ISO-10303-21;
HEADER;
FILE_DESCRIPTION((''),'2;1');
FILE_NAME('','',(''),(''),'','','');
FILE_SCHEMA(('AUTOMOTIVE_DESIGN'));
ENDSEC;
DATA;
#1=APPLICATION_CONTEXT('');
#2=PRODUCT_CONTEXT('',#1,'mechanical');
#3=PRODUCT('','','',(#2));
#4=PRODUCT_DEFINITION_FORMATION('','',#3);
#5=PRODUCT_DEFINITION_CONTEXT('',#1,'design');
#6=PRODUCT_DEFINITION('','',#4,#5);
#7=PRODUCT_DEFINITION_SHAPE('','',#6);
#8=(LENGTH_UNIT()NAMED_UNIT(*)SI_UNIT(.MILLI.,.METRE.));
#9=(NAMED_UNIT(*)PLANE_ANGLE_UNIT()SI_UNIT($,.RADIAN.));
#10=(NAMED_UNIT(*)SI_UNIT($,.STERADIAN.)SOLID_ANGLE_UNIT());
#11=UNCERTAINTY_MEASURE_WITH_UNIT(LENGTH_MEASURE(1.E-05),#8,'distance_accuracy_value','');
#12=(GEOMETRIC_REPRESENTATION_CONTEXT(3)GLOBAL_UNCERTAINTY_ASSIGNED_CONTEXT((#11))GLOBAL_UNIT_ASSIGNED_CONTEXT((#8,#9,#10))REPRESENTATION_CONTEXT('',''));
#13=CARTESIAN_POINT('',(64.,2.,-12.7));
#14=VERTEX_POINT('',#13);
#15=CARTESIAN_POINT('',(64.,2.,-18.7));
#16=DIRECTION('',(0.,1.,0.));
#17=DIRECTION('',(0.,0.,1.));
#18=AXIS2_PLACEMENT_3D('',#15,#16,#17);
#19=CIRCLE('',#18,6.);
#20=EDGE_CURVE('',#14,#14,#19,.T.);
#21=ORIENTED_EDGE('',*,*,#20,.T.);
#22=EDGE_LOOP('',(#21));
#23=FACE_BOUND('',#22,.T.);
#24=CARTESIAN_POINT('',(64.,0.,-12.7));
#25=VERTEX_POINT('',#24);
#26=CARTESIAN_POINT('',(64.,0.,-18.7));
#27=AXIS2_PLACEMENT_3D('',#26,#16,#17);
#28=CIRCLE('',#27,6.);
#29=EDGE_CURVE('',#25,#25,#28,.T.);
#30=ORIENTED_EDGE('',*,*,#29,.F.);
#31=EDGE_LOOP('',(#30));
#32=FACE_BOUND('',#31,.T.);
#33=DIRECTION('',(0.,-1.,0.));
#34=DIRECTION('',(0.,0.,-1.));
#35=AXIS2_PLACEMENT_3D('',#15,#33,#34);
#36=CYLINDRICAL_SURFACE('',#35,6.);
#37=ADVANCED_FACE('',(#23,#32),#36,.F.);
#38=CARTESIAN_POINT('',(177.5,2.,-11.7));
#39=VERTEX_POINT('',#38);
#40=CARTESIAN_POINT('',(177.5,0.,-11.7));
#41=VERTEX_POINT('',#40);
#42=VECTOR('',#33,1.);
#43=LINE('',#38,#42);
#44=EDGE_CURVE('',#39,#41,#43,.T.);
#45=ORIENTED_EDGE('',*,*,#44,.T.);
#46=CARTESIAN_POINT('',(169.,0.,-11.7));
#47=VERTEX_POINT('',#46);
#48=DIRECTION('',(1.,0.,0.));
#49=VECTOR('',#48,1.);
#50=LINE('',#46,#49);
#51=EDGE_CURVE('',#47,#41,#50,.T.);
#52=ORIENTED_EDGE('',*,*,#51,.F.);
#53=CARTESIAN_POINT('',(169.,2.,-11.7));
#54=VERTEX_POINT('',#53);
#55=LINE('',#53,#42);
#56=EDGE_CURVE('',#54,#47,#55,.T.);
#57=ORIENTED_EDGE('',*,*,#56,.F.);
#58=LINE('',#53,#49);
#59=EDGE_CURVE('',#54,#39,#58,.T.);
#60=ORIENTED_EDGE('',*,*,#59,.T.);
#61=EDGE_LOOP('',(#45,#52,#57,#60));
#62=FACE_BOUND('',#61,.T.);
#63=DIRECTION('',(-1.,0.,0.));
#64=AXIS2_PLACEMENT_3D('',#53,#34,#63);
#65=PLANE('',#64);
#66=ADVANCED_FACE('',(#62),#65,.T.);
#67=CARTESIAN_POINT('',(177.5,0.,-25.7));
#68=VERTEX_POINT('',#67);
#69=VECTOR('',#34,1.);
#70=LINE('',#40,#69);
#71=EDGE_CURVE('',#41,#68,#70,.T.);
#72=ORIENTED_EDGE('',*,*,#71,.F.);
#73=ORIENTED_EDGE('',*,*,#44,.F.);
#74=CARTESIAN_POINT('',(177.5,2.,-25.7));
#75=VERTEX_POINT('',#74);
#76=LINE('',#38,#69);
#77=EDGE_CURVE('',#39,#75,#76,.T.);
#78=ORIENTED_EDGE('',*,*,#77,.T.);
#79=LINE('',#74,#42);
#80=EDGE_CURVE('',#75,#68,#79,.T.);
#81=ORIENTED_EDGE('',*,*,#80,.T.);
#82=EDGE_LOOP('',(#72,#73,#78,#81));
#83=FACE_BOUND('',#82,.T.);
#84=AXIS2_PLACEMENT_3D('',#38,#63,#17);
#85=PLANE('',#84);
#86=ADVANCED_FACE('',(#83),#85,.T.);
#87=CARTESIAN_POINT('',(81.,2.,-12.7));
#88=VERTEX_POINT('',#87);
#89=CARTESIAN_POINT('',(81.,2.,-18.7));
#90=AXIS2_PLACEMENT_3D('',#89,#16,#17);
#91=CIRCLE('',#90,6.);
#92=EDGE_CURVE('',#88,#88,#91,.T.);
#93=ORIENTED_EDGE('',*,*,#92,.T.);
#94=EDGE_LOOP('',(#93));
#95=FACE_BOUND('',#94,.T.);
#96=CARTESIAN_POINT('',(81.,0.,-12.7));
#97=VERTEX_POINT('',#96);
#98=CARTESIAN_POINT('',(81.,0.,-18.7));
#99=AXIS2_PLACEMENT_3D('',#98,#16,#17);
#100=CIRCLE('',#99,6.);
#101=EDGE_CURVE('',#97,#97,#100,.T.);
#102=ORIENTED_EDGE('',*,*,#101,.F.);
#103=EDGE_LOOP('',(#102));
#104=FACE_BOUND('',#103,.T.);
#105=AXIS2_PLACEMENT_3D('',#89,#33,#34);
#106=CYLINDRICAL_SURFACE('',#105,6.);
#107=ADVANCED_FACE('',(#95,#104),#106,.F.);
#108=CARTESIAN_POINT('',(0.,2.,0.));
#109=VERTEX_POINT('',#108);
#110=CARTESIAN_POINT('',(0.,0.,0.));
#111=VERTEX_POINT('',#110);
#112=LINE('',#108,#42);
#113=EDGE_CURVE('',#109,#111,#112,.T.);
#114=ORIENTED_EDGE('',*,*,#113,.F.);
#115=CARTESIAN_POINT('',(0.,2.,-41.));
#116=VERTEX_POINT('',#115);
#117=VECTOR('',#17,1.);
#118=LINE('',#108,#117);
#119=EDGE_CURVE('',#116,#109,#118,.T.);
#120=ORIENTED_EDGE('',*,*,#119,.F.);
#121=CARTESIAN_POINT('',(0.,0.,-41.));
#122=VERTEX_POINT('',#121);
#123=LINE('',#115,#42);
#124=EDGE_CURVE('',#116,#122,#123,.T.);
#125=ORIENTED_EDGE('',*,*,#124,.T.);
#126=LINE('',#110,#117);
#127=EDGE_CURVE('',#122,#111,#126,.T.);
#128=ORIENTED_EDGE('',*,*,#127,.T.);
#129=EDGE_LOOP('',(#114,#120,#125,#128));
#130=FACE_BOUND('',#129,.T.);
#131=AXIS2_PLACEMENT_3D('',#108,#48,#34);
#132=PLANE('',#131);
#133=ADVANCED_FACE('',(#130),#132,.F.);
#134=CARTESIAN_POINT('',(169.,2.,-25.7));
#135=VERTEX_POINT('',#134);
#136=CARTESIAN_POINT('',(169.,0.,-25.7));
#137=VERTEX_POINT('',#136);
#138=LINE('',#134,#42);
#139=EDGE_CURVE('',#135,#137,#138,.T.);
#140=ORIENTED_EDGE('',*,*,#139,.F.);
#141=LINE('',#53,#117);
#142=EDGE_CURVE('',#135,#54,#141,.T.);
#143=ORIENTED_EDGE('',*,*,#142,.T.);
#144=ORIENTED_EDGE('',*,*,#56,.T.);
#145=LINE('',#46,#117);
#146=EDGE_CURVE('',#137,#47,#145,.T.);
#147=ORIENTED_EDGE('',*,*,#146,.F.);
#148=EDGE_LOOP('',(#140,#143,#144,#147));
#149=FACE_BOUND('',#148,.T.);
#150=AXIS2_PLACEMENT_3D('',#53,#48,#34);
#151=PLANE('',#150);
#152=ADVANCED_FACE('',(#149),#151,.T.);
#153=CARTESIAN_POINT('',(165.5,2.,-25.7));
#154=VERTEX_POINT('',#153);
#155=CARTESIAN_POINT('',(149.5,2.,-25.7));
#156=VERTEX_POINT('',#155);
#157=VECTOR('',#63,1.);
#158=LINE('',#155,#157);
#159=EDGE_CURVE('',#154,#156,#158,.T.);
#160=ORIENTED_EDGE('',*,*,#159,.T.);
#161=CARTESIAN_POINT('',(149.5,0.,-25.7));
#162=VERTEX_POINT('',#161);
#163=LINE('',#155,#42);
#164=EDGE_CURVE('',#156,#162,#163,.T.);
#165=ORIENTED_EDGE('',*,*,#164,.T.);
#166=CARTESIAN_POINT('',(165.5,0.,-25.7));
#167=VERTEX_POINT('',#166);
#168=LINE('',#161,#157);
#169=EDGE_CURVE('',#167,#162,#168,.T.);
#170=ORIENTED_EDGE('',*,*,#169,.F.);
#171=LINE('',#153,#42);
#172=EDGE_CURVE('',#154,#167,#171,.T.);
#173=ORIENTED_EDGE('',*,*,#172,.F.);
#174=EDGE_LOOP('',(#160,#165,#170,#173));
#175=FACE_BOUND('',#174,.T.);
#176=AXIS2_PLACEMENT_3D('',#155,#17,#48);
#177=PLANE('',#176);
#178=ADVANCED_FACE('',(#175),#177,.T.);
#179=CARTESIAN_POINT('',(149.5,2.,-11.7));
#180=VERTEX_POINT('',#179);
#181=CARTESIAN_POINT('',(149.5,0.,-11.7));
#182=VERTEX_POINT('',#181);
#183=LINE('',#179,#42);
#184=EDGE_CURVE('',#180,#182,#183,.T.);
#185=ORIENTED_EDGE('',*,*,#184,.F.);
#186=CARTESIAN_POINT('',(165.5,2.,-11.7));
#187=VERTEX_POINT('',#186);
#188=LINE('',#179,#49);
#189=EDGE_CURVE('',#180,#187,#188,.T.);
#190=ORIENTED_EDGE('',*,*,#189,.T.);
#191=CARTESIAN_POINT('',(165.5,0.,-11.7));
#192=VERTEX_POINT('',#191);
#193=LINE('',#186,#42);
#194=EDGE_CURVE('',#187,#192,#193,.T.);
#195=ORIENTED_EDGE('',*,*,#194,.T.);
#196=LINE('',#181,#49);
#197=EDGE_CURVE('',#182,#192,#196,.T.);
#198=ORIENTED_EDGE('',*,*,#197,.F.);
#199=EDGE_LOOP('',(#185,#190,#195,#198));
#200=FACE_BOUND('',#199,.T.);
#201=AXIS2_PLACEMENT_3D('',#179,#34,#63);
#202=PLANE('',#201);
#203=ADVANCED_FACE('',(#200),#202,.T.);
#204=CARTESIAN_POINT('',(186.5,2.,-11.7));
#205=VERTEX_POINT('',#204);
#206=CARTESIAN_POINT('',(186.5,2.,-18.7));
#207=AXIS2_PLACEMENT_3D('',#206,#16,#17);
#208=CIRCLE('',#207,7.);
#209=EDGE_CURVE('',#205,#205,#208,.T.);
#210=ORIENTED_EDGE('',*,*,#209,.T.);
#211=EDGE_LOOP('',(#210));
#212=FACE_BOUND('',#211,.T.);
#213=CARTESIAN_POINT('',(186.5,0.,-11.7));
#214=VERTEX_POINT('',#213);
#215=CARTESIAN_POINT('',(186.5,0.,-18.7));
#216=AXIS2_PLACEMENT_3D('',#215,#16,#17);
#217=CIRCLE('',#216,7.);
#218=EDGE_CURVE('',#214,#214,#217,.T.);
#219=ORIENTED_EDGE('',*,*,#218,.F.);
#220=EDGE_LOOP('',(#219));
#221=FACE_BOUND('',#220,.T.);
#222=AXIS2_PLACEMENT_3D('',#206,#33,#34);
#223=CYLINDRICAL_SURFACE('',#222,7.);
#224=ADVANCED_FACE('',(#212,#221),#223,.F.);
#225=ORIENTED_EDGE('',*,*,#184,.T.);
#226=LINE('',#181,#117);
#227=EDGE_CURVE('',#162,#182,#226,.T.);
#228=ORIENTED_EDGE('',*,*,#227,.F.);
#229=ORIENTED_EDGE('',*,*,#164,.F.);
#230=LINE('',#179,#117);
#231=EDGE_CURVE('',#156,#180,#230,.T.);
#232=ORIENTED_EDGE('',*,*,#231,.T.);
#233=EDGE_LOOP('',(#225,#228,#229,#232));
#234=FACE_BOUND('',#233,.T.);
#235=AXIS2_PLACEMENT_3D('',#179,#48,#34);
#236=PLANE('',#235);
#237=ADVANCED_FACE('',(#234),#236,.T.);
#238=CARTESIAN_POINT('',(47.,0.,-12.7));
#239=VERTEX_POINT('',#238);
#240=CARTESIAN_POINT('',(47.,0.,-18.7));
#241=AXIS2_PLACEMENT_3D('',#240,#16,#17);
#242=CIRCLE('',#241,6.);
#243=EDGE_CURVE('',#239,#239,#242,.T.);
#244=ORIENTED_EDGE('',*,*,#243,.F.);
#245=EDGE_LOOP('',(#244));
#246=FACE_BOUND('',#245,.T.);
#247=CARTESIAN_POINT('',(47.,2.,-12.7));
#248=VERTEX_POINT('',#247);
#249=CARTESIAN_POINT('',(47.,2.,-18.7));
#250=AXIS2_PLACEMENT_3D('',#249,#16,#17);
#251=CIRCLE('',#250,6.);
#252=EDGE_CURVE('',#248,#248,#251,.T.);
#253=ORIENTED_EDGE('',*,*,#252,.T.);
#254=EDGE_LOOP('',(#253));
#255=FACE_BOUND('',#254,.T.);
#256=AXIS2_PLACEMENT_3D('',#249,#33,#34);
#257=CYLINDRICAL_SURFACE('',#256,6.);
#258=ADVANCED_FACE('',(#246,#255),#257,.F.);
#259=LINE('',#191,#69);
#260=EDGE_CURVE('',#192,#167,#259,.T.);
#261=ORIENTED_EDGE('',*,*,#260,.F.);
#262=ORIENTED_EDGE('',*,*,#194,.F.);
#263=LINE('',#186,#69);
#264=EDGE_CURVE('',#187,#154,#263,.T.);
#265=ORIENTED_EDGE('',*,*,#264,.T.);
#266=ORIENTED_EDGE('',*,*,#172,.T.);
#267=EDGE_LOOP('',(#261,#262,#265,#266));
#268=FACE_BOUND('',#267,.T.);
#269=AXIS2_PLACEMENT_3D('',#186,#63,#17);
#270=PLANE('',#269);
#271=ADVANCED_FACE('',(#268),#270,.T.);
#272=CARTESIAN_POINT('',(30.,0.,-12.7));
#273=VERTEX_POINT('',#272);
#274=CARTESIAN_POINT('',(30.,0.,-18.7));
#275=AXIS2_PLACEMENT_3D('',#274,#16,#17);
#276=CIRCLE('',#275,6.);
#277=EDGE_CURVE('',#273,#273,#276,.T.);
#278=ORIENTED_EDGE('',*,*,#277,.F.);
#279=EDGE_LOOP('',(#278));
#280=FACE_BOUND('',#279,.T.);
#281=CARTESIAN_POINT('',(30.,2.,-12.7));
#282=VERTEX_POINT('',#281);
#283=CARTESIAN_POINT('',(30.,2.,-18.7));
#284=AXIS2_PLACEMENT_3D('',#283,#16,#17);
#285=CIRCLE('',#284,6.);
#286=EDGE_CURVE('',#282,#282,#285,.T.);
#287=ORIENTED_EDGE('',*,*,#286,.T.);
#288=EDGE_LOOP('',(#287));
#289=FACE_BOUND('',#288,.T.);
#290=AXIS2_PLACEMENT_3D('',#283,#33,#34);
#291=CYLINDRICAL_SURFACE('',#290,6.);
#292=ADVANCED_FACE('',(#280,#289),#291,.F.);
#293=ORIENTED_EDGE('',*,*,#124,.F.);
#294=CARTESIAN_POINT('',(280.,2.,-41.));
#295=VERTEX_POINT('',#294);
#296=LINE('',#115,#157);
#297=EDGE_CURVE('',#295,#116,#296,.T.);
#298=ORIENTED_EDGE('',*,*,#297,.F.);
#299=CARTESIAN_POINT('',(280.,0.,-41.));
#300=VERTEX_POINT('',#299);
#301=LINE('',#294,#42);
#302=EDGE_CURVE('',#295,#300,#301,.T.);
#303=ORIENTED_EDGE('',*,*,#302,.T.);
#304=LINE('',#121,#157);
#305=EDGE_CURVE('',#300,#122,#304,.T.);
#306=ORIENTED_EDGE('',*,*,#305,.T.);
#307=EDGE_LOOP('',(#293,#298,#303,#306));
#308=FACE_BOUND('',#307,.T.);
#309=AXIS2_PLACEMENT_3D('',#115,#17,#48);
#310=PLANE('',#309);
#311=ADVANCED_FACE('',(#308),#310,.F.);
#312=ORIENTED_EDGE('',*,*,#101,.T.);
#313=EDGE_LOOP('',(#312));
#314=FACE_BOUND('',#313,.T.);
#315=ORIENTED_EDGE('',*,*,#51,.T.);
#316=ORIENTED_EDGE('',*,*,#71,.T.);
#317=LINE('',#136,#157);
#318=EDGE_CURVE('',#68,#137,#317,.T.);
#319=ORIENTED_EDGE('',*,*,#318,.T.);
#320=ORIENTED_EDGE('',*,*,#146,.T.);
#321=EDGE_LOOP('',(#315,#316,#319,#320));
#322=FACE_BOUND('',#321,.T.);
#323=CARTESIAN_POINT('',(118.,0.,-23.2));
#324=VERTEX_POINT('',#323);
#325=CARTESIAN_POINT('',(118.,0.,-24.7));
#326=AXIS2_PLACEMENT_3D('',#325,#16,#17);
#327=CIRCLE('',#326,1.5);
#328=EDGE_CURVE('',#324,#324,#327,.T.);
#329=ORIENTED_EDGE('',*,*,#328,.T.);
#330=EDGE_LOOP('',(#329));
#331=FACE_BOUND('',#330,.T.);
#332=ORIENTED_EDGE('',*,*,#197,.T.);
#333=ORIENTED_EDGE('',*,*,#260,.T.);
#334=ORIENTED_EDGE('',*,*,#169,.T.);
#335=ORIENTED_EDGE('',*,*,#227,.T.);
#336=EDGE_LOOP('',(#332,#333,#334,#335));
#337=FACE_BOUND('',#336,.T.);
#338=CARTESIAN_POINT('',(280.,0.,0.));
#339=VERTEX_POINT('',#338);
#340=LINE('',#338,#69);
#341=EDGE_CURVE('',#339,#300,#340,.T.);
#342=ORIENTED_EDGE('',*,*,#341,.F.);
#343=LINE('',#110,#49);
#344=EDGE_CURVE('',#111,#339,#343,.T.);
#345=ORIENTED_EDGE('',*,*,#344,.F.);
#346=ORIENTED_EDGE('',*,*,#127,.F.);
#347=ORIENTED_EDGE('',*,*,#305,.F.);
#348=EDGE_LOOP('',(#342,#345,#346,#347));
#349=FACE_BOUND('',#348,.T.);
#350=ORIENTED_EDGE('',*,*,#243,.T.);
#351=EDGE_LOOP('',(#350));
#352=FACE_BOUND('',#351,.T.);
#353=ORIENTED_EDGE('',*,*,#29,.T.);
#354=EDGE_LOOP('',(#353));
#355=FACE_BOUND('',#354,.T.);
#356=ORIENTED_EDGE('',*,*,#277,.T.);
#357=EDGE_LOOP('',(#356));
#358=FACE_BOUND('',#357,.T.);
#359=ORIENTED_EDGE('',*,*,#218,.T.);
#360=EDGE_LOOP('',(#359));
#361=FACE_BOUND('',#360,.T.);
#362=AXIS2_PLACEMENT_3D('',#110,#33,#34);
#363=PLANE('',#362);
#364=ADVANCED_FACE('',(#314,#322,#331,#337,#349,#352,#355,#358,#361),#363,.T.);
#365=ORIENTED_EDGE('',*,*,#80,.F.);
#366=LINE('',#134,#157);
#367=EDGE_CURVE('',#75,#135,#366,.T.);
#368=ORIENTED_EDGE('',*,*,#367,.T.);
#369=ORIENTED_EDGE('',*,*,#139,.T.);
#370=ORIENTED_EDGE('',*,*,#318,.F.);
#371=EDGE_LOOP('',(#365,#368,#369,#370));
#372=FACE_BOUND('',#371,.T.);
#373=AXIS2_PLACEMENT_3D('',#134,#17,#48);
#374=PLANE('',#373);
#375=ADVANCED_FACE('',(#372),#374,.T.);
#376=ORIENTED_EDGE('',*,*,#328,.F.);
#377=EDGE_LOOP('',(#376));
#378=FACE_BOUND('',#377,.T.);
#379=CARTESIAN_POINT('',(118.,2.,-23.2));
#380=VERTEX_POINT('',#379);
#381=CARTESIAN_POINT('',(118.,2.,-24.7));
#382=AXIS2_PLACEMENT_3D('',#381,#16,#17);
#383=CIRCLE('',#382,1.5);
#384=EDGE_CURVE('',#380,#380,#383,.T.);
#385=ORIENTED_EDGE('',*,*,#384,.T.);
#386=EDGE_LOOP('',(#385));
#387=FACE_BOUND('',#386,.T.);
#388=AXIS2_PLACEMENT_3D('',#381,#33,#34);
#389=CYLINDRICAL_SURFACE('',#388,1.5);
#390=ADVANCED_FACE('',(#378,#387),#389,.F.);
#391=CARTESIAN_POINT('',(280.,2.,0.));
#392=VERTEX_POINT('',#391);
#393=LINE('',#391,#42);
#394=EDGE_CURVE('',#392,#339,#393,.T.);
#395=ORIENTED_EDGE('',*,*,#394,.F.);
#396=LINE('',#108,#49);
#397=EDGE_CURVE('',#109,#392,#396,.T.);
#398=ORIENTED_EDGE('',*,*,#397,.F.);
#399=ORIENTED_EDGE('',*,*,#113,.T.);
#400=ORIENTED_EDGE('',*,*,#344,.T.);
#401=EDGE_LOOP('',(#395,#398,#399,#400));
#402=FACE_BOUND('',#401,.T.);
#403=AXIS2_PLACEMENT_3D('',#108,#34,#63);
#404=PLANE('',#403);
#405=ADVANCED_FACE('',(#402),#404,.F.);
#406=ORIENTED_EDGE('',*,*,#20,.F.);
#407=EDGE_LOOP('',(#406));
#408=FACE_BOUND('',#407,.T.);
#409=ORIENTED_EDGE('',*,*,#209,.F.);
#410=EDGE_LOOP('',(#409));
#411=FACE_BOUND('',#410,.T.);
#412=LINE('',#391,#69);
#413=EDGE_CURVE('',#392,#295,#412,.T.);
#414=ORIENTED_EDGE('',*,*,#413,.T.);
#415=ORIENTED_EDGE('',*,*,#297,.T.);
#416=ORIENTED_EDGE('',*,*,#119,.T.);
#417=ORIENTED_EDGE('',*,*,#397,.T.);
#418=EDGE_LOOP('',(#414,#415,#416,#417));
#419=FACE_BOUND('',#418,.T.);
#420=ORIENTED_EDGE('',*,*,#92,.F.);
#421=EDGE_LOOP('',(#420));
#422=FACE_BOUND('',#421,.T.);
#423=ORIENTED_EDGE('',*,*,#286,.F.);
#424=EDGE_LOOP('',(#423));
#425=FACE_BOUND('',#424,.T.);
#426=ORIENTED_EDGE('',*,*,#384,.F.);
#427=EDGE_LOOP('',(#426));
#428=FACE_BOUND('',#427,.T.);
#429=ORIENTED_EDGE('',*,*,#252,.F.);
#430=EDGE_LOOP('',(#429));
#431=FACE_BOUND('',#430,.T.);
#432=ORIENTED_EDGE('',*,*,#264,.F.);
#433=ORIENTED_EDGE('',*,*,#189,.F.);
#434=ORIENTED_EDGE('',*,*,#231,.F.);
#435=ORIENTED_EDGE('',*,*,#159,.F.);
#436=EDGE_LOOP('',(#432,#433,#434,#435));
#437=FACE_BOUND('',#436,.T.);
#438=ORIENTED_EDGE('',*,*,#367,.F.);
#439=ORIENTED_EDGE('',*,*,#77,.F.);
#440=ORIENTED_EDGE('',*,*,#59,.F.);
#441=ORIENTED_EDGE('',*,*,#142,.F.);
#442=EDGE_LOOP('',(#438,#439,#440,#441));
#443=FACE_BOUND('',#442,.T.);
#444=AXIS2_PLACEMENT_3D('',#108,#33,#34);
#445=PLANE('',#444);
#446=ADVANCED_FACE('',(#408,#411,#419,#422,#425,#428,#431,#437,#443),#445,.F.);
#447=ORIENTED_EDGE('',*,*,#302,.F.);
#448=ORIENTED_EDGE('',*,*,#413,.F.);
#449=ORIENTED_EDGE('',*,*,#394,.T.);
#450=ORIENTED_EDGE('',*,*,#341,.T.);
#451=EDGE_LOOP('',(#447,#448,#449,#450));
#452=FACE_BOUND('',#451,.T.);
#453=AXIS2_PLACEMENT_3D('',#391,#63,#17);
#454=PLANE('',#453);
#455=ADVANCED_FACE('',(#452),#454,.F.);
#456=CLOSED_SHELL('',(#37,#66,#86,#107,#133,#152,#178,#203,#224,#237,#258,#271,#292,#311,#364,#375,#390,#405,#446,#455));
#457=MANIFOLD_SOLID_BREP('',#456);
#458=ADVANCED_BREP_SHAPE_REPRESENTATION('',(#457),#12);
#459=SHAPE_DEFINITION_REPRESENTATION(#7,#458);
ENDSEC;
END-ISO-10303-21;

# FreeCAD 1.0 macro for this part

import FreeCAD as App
import Part
import Sketcher

doc = App.newDocument("Part")
body = doc.addObject("PartDesign::Body", "Body")

# Sketch on XZ plane
sketch1 = body.newObject("Sketcher::SketchObject", "Sketch")
sketch1.AttachmentSupport = (doc.getObject("XZ_Plane"), [""])
sketch1.MapMode = "FlatFace"
sketch1.addGeometry([
    Part.LineSegment(App.Vector(0, -41, 0), App.Vector(0, 0, 0)),  # 0
    Part.LineSegment(App.Vector(0, 0, 0), App.Vector(280, 0, 0)),  # 1
    Part.LineSegment(App.Vector(280, 0, 0), App.Vector(280, -41, 0)),  # 2
    Part.LineSegment(App.Vector(280, -41, 0), App.Vector(0, -41, 0)),  # 3
    Part.Circle(App.Vector(30, -18.7, 0), App.Vector(0, 0, 1), 6),  # 4
    Part.Circle(App.Vector(47, -18.7, 0), App.Vector(0, 0, 1), 6),  # 5
    Part.Circle(App.Vector(64, -18.7, 0), App.Vector(0, 0, 1), 6),  # 6
    Part.Circle(App.Vector(81, -18.7, 0), App.Vector(0, 0, 1), 6),  # 7
    Part.LineSegment(App.Vector(165.5, -11.7, 0), App.Vector(149.5, -11.7, 0)),  # 8
    Part.LineSegment(App.Vector(149.5, -11.7, 0), App.Vector(149.5, -25.7, 0)),  # 9
    Part.LineSegment(App.Vector(149.5, -25.7, 0), App.Vector(165.5, -25.7, 0)),  # 10
    Part.LineSegment(App.Vector(165.5, -25.7, 0), App.Vector(165.5, -11.7, 0)),  # 11
    Part.LineSegment(App.Vector(177.5, -11.7, 0), App.Vector(169, -11.7, 0)),  # 12
    Part.LineSegment(App.Vector(169, -11.7, 0), App.Vector(169, -25.7, 0)),  # 13
    Part.LineSegment(App.Vector(169, -25.7, 0), App.Vector(177.5, -25.7, 0)),  # 14
    Part.LineSegment(App.Vector(177.5, -25.7, 0), App.Vector(177.5, -11.7, 0)),  # 15
    Part.Circle(App.Vector(186.5, -18.7, 0), App.Vector(0, 0, 1), 7),  # 16
    Part.Circle(App.Vector(118, -24.7, 0), App.Vector(0, 0, 1), 1.5),  # 17
], False)
sketch1.addConstraint([
    Sketcher.Constraint("Coincident", 0, 2, 1, 1),
    Sketcher.Constraint("Coincident", 1, 2, 2, 1),
    Sketcher.Constraint("Coincident", 2, 2, 3, 1),
    Sketcher.Constraint("Coincident", 3, 2, 0, 1),
    Sketcher.Constraint("Coincident", 8, 2, 9, 1),
    Sketcher.Constraint("Coincident", 9, 2, 10, 1),
    Sketcher.Constraint("Coincident", 10, 2, 11, 1),
    Sketcher.Constraint("Coincident", 11, 2, 8, 1),
    Sketcher.Constraint("Coincident", 12, 2, 13, 1),
    Sketcher.Constraint("Coincident", 13, 2, 14, 1),
    Sketcher.Constraint("Coincident", 14, 2, 15, 1),
    Sketcher.Constraint("Coincident", 15, 2, 12, 1),
    Sketcher.Constraint("Vertical", 0),
    Sketcher.Constraint("Horizontal", 1),
    Sketcher.Constraint("Vertical", 2),
    Sketcher.Constraint("Horizontal", 3),
    Sketcher.Constraint("Horizontal", 8),
    Sketcher.Constraint("Vertical", 9),
    Sketcher.Constraint("Horizontal", 10),
    Sketcher.Constraint("Vertical", 11),
    Sketcher.Constraint("Horizontal", 12),
    Sketcher.Constraint("Vertical", 13),
    Sketcher.Constraint("Horizontal", 14),
    Sketcher.Constraint("Vertical", 15),
    Sketcher.Constraint("Coincident", 0, 2, -1, 1),
    Sketcher.Constraint("Equal", 4, 5),
    Sketcher.Constraint("Equal", 5, 6),
    Sketcher.Constraint("Equal", 6, 7),
    Sketcher.Constraint("Horizontal", 4, 3, 5, 3),
    Sketcher.Constraint("Horizontal", 5, 3, 6, 3),
    Sketcher.Constraint("Horizontal", 6, 3, 7, 3),
    Sketcher.Constraint("Horizontal", 7, 3, 16, 3),
    Sketcher.Constraint("Horizontal", 11, 2, 12, 2),
    Sketcher.Constraint("Horizontal", 10, 2, 13, 2),
    Sketcher.Constraint("Diameter", 4, 12.0),
    Sketcher.Constraint("Diameter", 16, 14.0),
    Sketcher.Constraint("Diameter", 17, 3.0),
    Sketcher.Constraint("DistanceX", 1, 1, 1, 2, 280.0),
    Sketcher.Constraint("DistanceX", 8, 2, 8, 1, 16.0),
    Sketcher.Constraint("DistanceY", 0, 1, 0, 2, 41.0),
    Sketcher.Constraint("DistanceY", 9, 2, 9, 1, 14.0),
    Sketcher.Constraint("DistanceX", 12, 2, 12, 1, 8.5),
    Sketcher.Constraint("DistanceX", -1, 1, 4, 3, 30.0),
    Sketcher.Constraint("DistanceX", -1, 1, 5, 3, 47.0),
    Sketcher.Constraint("DistanceX", -1, 1, 6, 3, 64.0),
    Sketcher.Constraint("DistanceX", -1, 1, 7, 3, 81.0),
    Sketcher.Constraint("DistanceX", -1, 1, 17, 3, 118.0),
    Sketcher.Constraint("DistanceX", -1, 1, 12, 2, 169.0),
    Sketcher.Constraint("DistanceY", 17, 3, 7, 3, 6.0),
    Sketcher.Constraint("DistanceY", 17, 3, 8, 2, 13.0),
    Sketcher.Constraint("DistanceX", 8, 2, 16, 3, 37.0),
    Sketcher.Constraint("DistanceX", 14, 2, 16, 3, 9.0),
    Sketcher.Constraint("DistanceY", 4, 3, -1, 1, 18.7),
])
pad1 = body.newObject("PartDesign::Pad", "Pad")
pad1.Profile = sketch1
pad1.Length = 2
pad1.Reversed = True

doc.recompute()
